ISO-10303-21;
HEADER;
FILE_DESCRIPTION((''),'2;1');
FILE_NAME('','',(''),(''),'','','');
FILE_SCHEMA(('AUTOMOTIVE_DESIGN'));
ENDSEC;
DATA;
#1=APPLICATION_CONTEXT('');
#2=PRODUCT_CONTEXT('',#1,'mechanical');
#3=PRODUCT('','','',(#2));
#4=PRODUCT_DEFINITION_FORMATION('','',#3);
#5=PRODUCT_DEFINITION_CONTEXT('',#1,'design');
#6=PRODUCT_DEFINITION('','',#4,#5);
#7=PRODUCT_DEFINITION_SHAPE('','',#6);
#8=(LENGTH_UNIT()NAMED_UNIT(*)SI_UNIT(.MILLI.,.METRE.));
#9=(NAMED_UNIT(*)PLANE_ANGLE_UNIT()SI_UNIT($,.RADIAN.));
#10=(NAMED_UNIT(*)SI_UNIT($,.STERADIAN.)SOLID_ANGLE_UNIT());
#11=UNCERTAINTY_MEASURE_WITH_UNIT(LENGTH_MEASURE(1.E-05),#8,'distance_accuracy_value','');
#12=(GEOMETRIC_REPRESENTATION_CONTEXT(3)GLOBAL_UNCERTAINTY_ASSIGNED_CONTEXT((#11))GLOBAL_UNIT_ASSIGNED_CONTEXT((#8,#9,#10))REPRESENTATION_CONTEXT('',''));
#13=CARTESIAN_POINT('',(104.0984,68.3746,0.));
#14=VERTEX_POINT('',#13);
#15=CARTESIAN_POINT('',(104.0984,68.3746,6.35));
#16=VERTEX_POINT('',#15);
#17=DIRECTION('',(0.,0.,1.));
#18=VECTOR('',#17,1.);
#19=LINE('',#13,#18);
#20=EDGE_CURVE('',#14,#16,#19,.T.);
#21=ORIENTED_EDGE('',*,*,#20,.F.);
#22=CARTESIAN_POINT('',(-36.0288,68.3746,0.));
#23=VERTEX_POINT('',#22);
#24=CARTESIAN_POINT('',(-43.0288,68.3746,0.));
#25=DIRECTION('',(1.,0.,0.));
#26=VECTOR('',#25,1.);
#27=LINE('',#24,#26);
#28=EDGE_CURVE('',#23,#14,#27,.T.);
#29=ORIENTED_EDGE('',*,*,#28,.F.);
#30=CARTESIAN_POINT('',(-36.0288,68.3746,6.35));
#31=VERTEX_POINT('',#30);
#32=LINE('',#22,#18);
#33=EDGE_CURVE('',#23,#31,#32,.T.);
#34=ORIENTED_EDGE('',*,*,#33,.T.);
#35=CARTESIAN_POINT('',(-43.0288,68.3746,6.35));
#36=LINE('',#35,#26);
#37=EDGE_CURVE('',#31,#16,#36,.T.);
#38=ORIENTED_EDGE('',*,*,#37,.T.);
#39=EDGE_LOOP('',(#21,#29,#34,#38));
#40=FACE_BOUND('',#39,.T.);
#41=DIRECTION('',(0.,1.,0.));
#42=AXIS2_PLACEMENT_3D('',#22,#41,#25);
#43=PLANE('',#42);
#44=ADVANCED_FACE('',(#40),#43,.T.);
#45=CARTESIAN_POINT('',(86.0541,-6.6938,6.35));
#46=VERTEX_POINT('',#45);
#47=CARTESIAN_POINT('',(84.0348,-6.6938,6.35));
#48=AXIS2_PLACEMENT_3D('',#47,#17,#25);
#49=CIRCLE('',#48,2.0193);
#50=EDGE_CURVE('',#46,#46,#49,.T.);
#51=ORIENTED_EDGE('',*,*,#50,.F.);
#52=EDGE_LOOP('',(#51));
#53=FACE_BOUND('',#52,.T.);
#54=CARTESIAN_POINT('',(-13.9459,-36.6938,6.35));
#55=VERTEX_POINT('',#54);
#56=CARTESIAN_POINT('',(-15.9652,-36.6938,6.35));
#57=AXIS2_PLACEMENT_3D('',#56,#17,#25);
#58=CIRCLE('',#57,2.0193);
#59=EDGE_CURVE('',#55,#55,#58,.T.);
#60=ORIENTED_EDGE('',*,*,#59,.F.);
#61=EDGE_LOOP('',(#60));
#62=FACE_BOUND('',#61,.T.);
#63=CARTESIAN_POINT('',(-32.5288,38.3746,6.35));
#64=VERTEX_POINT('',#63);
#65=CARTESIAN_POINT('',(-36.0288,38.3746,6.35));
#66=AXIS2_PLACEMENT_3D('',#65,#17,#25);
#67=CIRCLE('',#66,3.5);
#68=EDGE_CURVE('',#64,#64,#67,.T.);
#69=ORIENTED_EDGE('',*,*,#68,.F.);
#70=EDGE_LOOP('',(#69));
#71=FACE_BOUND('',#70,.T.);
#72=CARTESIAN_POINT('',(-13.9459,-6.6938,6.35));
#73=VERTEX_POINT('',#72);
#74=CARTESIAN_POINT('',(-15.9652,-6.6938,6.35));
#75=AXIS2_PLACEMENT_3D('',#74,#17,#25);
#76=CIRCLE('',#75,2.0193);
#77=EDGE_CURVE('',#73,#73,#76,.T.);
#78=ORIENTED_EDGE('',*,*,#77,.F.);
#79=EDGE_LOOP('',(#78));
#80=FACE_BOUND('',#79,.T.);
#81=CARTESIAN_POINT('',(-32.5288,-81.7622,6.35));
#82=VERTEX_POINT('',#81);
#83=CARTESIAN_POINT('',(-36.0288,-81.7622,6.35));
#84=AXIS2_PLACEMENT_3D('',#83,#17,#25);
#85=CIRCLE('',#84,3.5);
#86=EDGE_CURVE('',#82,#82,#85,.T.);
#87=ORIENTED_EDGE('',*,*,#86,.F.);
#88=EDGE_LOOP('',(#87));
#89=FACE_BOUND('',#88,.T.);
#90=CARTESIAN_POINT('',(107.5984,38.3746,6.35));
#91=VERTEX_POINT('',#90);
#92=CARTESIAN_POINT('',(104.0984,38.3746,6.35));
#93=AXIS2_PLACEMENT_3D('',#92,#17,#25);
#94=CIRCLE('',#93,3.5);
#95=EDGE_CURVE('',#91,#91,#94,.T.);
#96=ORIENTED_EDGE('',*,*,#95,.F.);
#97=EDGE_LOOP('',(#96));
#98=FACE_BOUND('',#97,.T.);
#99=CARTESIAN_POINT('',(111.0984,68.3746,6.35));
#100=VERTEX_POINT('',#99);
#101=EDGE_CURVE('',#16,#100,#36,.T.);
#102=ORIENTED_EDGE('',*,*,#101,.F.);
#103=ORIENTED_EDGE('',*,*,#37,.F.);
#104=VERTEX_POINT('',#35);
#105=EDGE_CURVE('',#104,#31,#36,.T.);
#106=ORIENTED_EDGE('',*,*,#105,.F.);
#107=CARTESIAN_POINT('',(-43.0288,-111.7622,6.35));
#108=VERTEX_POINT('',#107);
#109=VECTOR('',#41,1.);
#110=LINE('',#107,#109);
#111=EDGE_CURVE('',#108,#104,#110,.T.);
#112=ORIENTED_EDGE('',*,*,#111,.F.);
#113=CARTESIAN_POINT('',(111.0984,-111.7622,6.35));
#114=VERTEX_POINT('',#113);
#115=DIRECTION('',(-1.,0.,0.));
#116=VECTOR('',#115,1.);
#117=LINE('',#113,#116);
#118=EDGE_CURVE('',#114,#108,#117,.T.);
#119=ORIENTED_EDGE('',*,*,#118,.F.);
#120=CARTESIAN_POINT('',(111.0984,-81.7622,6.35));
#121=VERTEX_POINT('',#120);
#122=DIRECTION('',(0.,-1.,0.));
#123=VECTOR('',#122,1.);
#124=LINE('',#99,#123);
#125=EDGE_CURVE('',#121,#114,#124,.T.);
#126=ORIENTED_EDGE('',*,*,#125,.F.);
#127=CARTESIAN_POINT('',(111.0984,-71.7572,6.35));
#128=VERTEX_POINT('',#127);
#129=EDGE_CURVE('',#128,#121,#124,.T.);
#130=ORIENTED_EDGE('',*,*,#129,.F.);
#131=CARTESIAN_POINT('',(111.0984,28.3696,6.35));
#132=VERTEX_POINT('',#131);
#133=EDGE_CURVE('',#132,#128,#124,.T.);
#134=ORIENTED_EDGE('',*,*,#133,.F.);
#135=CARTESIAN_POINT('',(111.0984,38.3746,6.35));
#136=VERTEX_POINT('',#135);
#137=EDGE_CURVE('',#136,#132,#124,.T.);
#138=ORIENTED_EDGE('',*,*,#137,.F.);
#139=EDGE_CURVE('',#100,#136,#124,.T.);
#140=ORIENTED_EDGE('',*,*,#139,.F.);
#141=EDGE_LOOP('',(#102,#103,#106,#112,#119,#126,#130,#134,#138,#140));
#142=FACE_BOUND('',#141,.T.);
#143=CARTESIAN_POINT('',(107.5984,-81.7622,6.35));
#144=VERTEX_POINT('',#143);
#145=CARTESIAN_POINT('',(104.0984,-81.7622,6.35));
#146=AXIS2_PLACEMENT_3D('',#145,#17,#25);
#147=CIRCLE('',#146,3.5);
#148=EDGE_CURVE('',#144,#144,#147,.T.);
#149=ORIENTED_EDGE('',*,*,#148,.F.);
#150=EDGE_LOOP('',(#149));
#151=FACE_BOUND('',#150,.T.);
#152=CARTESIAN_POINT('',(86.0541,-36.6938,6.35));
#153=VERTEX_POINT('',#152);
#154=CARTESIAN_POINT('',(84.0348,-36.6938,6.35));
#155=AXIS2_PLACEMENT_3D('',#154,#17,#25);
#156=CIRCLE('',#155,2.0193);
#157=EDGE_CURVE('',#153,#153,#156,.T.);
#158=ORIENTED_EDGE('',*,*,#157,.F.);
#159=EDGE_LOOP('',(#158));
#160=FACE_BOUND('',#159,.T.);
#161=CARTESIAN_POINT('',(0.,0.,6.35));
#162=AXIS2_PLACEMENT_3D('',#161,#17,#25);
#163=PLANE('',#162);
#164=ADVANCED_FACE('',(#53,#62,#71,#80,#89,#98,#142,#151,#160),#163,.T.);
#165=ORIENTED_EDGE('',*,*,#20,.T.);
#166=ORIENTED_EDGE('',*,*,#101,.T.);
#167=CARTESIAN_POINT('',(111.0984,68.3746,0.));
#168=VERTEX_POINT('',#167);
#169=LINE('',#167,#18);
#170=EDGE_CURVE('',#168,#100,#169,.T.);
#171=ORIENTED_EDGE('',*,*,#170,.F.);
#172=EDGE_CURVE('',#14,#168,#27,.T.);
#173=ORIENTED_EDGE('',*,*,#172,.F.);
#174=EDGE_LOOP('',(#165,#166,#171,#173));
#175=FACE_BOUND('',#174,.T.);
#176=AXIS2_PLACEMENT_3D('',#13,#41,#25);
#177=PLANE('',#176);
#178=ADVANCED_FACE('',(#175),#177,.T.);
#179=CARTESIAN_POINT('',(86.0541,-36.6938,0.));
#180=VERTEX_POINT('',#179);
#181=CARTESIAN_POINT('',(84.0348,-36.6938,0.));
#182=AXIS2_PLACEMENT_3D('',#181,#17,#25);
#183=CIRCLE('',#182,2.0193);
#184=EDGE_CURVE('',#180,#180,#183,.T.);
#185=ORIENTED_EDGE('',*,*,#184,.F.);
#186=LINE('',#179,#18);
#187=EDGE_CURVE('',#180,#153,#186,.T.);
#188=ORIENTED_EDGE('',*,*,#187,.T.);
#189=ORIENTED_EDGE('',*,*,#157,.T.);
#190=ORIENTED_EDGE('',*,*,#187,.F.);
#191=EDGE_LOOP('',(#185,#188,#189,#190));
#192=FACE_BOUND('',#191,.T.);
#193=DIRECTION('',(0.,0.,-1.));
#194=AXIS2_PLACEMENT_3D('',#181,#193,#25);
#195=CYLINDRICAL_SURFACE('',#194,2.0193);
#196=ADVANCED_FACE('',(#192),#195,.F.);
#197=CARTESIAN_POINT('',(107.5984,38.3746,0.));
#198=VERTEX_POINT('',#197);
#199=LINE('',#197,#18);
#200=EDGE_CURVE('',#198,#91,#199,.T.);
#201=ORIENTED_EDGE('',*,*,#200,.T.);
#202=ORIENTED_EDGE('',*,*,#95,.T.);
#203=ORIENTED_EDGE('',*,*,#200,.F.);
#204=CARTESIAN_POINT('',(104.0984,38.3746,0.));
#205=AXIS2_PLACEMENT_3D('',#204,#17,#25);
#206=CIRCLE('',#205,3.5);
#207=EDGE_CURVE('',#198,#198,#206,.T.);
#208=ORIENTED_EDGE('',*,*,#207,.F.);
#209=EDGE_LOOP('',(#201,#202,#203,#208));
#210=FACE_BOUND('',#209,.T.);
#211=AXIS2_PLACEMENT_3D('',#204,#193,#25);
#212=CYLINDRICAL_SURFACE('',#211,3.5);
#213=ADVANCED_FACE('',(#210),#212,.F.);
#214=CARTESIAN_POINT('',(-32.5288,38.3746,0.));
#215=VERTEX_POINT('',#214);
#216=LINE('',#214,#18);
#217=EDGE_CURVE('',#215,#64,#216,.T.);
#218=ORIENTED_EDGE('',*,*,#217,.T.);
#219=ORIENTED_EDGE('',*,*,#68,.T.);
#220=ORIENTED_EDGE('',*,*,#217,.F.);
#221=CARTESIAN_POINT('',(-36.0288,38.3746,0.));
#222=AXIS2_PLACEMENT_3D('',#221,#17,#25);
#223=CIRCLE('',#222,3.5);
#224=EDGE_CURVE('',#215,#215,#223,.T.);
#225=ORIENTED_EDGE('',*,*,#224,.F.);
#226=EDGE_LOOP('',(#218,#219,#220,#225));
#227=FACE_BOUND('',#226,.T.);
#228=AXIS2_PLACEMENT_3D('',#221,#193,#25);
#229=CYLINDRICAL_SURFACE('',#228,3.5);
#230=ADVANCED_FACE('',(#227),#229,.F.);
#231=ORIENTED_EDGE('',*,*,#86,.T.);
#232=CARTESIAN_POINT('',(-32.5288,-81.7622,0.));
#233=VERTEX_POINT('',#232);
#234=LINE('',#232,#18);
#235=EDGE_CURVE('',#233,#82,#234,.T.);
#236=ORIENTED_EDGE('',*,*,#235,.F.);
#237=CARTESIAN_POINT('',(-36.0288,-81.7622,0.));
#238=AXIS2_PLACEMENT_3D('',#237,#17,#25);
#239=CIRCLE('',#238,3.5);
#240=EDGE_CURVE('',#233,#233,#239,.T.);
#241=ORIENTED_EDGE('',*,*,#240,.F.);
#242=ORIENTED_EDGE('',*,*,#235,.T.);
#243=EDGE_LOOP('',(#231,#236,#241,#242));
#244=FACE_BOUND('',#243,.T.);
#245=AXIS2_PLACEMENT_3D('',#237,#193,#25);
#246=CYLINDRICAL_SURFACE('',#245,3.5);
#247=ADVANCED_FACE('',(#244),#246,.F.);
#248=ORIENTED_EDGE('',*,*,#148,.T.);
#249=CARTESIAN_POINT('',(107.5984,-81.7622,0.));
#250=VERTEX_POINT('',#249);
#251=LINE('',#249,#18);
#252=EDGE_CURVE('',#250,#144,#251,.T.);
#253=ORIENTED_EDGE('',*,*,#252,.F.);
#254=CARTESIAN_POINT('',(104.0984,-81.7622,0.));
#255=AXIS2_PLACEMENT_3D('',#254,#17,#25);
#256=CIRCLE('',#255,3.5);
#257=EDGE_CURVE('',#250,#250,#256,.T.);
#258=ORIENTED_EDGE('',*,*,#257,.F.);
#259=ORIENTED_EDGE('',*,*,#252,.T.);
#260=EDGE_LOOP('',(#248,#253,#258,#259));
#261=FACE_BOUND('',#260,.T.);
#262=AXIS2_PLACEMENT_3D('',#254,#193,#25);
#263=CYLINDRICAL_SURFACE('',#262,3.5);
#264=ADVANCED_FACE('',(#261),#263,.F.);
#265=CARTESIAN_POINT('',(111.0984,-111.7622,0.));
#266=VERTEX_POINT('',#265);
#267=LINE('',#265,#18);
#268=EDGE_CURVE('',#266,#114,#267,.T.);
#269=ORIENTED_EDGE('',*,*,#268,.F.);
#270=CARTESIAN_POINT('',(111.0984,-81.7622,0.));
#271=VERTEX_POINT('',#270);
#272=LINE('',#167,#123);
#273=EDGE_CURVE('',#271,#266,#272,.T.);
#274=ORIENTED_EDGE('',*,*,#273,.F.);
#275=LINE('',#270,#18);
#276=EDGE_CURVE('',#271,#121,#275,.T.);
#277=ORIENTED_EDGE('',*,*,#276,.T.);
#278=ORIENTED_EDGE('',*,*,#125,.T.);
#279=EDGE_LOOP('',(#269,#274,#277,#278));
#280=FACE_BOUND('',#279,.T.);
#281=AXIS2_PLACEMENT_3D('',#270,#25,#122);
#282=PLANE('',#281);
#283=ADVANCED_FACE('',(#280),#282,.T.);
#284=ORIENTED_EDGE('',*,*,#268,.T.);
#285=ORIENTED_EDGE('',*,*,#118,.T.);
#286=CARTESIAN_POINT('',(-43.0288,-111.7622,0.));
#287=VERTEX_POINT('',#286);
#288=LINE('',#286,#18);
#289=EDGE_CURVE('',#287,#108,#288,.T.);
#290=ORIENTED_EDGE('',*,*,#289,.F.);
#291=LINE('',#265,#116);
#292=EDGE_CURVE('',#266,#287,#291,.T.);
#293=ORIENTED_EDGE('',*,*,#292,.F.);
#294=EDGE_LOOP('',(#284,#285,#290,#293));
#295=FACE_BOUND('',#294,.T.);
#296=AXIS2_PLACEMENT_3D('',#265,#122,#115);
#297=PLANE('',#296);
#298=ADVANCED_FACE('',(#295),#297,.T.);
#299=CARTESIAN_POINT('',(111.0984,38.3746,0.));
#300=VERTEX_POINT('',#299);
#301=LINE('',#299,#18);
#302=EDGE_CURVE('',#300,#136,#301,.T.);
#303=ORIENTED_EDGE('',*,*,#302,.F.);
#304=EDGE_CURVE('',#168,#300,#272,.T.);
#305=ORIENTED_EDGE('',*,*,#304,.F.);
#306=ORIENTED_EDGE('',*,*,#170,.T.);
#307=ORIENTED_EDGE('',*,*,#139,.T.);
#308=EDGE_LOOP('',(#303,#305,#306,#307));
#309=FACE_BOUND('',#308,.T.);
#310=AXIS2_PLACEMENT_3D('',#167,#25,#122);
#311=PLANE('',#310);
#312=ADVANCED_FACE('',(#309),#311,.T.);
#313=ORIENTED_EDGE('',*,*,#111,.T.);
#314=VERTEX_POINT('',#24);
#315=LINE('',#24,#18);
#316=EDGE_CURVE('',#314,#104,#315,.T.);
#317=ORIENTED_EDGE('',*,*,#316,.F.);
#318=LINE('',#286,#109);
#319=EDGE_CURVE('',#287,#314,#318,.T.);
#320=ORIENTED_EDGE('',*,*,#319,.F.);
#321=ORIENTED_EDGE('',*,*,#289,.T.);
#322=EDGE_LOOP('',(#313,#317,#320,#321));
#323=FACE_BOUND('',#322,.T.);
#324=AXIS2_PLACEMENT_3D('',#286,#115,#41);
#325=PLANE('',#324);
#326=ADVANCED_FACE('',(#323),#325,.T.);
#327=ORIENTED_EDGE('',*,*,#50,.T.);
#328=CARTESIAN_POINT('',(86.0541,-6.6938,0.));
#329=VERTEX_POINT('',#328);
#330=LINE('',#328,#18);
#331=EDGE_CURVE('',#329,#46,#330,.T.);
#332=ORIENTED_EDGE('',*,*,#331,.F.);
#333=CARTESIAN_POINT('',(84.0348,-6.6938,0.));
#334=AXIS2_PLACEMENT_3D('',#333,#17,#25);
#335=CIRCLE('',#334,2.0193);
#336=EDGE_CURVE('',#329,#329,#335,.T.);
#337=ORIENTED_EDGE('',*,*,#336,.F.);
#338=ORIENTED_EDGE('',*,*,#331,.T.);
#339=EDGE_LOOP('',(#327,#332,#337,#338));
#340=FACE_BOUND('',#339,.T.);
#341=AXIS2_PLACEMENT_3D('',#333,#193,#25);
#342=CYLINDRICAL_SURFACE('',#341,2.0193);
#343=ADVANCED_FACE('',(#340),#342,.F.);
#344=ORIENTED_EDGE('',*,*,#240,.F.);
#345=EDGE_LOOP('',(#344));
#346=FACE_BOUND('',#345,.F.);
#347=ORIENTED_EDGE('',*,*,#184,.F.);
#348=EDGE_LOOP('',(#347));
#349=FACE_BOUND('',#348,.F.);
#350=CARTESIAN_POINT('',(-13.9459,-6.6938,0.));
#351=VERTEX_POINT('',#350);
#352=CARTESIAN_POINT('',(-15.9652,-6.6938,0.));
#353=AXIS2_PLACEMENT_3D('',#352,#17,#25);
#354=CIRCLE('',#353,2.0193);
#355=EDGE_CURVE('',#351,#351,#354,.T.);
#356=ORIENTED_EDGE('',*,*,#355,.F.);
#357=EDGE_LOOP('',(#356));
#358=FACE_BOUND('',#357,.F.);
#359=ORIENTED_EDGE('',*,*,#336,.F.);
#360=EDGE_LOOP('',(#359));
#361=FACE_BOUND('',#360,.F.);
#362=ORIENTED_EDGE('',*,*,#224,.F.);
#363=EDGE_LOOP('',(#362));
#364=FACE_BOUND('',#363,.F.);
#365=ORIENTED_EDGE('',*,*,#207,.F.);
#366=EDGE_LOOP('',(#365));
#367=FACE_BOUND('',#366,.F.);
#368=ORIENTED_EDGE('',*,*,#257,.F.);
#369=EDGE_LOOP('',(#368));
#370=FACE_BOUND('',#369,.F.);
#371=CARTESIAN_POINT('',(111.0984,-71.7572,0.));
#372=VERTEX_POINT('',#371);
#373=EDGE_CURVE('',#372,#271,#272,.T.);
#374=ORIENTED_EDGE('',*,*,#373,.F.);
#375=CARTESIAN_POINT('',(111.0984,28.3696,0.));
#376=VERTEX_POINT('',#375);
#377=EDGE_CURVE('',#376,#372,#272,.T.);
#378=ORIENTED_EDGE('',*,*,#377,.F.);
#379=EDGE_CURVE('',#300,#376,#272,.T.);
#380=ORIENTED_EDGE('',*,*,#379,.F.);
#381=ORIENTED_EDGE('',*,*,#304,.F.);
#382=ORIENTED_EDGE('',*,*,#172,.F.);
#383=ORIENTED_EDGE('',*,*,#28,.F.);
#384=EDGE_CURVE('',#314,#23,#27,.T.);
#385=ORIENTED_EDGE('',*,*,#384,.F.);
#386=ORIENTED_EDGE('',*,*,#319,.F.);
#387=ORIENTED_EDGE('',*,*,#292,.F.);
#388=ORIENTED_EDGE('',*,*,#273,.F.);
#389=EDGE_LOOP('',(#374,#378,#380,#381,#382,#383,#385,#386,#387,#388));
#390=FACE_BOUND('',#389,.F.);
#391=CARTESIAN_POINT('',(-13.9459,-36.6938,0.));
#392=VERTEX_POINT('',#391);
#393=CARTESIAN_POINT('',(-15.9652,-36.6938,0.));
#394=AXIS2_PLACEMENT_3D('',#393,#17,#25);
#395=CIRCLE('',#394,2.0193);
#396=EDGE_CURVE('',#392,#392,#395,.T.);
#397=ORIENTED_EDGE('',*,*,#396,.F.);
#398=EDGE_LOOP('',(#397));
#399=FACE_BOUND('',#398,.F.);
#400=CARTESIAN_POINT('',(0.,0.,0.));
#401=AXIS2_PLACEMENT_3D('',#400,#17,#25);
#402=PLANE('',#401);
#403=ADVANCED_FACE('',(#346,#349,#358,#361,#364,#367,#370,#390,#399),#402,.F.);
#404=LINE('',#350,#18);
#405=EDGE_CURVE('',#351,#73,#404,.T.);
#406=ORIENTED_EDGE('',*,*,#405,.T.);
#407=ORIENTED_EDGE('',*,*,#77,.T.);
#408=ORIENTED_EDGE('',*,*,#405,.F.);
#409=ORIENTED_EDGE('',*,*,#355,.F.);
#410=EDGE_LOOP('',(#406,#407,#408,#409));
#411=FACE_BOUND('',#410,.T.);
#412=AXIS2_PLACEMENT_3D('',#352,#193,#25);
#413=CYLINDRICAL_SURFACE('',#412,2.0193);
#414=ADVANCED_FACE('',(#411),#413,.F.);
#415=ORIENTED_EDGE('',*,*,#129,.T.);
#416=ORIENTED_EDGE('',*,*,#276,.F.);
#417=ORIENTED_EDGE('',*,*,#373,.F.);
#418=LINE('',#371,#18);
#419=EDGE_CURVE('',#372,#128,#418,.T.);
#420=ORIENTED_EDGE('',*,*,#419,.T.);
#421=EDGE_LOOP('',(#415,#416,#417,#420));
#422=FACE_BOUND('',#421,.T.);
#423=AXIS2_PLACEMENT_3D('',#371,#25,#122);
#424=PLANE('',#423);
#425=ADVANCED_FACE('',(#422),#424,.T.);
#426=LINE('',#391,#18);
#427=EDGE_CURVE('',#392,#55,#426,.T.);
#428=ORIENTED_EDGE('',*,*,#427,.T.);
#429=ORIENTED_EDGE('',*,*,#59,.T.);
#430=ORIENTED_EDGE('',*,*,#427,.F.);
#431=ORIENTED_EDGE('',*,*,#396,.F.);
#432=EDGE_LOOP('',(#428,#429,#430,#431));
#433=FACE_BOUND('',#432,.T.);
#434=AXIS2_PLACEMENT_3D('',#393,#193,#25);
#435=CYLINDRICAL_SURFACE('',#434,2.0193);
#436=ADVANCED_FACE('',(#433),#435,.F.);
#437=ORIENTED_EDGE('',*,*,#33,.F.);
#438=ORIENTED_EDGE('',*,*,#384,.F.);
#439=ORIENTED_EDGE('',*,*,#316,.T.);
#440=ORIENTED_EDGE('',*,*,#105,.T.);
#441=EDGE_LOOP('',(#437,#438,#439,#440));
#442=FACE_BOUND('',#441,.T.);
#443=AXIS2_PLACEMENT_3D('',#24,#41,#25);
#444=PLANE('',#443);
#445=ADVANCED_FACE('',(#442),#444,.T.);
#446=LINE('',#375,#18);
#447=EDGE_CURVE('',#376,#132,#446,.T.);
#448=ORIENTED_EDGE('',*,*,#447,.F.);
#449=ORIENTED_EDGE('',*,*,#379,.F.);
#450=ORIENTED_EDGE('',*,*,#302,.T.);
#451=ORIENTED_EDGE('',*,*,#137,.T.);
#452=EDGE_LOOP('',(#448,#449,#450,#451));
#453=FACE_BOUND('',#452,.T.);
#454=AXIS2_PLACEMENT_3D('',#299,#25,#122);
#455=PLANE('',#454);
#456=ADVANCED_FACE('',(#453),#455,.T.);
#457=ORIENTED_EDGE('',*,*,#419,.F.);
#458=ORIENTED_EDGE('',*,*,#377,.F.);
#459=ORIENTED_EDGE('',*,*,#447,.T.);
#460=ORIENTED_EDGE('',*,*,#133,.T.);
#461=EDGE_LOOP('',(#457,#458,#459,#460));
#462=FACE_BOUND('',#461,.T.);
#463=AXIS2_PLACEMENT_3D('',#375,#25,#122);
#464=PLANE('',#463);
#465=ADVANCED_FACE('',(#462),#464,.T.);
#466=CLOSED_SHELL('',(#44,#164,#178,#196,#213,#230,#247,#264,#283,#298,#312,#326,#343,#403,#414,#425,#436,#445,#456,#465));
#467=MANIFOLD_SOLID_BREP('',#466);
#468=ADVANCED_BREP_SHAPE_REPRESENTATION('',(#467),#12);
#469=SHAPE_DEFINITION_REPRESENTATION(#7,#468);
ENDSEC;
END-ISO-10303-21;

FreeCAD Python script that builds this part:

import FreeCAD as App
import Part
import Sketcher
from FreeCAD import Vector
Q = App.Units.Quantity


def add_polygon(sketch, points):
    """Adds a closed chain of lines whose ends are joined by coincident constraints."""
    first, n = sketch.GeometryCount, len(points)
    for a, b in zip(points, points[1:] + points[:1]):
        sketch.addGeometry(Part.LineSegment(App.Vector(*a, 0), App.Vector(*b, 0)), False)
    for i in range(n):
        sketch.addConstraint(Sketcher.Constraint("Coincident", first + i, 2, first + (i + 1) % n, 1))

doc = App.newDocument("Part")
params = doc.addObject("Spreadsheet::Sheet", "Params")
for row, (alias, value) in enumerate([
    ("sketch1_diameter", "0.159 in"),
    ("sketch1_width", "6.068 in"),
    ("sketch1_height", "7.092 in"),
    ("pad1_length", "0.25 in"),
], start=1):
    params.set(f"A{row}", alias)
    params.set(f"B{row}", "=" + value)
    params.setAlias(f"B{row}", alias)

body = doc.addObject("PartDesign::Body", "Body")

sketch1 = body.newObject("Sketcher::SketchObject", "Sketch")
sketch1.AttachmentSupport = (doc.getObject("XY_Plane"), [""])
sketch1.MapMode = "FlatFace"
add_polygon(sketch1, [(111.1, 68.4), (-43, 68.4), (-43, -111.8), (111.1, -111.8)])
sketch1.addGeometry(Part.Circle(Vector(-36, -81.8, 0), Vector(0, 0, 1), 3.5), False)
sketch1.addGeometry(Part.Circle(Vector(-16, -36.7, 0), Vector(0, 0, 1), 2), False)
sketch1.addGeometry(Part.Circle(Vector(104.1, -81.8, 0), Vector(0, 0, 1), 3.5), False)
sketch1.addGeometry(Part.Circle(Vector(84, -36.7, 0), Vector(0, 0, 1), 2), False)
sketch1.addGeometry(Part.Circle(Vector(-16, -6.7, 0), Vector(0, 0, 1), 2), False)
sketch1.addGeometry(Part.Circle(Vector(-36, 38.4, 0), Vector(0, 0, 1), 3.5), False)
sketch1.addGeometry(Part.Circle(Vector(84, -6.7, 0), Vector(0, 0, 1), 2), False)
sketch1.addGeometry(Part.Circle(Vector(104.1, 38.4, 0), Vector(0, 0, 1), 3.5), False)
sketch1.addConstraint(Sketcher.Constraint("Horizontal", 0))
sketch1.addConstraint(Sketcher.Constraint("Vertical", 1))
sketch1.addConstraint(Sketcher.Constraint("Horizontal", 2))
sketch1.addConstraint(Sketcher.Constraint("Vertical", 3))
sketch1.addConstraint(Sketcher.Constraint("Equal", 4, 6))
sketch1.addConstraint(Sketcher.Constraint("Equal", 5, 7))
sketch1.addConstraint(Sketcher.Constraint("Equal", 7, 8))
sketch1.addConstraint(Sketcher.Constraint("Equal", 6, 9))
sketch1.addConstraint(Sketcher.Constraint("Equal", 8, 10))
sketch1.addConstraint(Sketcher.Constraint("Equal", 9, 11))
sketch1.addConstraint(Sketcher.Constraint("Horizontal", 4, 3, 6, 3))
sketch1.addConstraint(Sketcher.Constraint("Horizontal", 5, 3, 7, 3))
sketch1.addConstraint(Sketcher.Constraint("Horizontal", 8, 3, 10, 3))
sketch1.addConstraint(Sketcher.Constraint("Horizontal", 9, 3, 11, 3))
sketch1.addConstraint(Sketcher.Constraint("Vertical", 5, 3, 8, 3))
sketch1.addConstraint(Sketcher.Constraint("Vertical", 4, 3, 9, 3))
sketch1.addConstraint(Sketcher.Constraint("Vertical", 7, 3, 10, 3))
sketch1.addConstraint(Sketcher.Constraint("Vertical", 6, 3, 11, 3))
sketch1.addConstraint(Sketcher.Constraint("Diameter", 5, Q("0.159 in")))
sketch1.addConstraint(Sketcher.Constraint("Diameter", 4, Q("0.2756 in")))
sketch1.addConstraint(Sketcher.Constraint("DistanceX", 0, 2, 0, 1, Q("6.068 in")))
sketch1.addConstraint(Sketcher.Constraint("DistanceY", 1, 2, 1, 1, Q("7.092 in")))
sketch1.addConstraint(Sketcher.Constraint("DistanceY", 5, 3, 8, 3, Q("1.1811 in")))
sketch1.addConstraint(Sketcher.Constraint("DistanceX", 0, 2, 9, 3, Q("0.2756 in")))
sketch1.addConstraint(Sketcher.Constraint("DistanceY", 9, 3, 0, 2, Q("1.1811 in")))
sketch1.addConstraint(Sketcher.Constraint("DistanceY", 1, 2, 4, 3, Q("1.1811 in")))
sketch1.addConstraint(Sketcher.Constraint("DistanceX", 6, 3, 2, 2, Q("0.2756 in")))
sketch1.addConstraint(Sketcher.Constraint("DistanceX", 5, 3, 7, 3, Q("3.937 in")))
sketch1.addConstraint(Sketcher.Constraint("DistanceY", -1, 1, 9, 3, Q("1.5108 in")))
sketch1.addConstraint(Sketcher.Constraint("DistanceX", 4, 3, 5, 3, Q("0.7899 in")))
sketch1.addConstraint(Sketcher.Constraint("DistanceX", 4, 3, -1, 1, Q("36.0288 mm")))
sketch1.addConstraint(Sketcher.Constraint("DistanceY", 5, 3, -1, 1, Q("36.6938 mm")))
sketch1.setExpression("Constraints[22]", "Params.sketch1_diameter")
sketch1.setExpression("Constraints[24]", "Params.sketch1_width")
sketch1.setExpression("Constraints[25]", "Params.sketch1_height")
pad1 = body.newObject("PartDesign::Pad", "Pad")
pad1.Profile = sketch1
pad1.setExpression("Length", "Params.pad1_length")

doc.recompute()
